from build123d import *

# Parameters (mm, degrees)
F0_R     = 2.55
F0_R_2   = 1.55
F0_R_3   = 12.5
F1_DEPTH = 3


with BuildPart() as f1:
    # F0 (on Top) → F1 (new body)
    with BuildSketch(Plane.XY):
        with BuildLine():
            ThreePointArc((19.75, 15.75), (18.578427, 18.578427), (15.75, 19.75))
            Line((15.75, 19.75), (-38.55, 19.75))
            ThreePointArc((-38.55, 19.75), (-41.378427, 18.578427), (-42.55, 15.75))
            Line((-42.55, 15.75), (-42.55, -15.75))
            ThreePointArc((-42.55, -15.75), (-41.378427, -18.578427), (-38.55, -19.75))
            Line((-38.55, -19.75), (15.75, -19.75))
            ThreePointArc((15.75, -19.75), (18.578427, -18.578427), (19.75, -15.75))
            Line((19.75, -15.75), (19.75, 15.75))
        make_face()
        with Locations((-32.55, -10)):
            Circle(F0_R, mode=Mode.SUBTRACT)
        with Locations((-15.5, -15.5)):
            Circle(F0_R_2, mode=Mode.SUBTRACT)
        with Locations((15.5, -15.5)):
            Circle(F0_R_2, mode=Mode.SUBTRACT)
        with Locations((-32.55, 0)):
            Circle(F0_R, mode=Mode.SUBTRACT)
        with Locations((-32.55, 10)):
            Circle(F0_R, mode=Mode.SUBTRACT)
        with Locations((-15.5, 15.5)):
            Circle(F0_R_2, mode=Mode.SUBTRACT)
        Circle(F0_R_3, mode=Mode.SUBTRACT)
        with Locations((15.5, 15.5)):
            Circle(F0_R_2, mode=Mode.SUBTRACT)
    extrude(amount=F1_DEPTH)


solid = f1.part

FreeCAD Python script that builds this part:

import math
import FreeCAD as App
import Part
import Sketcher

V = App.Vector

doc = App.newDocument("Part")
body = doc.addObject("PartDesign::Body", "Body")

sketch1 = body.newObject("Sketcher::SketchObject", "Sketch")
sketch1.AttachmentSupport = (doc.getObject("XY_Plane"), [""])
sketch1.MapMode = "FlatFace"
sketch1.addGeometry(Part.ArcOfCircle(Part.Circle(V(15.7, 15.7, 0), V(0, 0, 1), 4), math.radians(0), math.radians(90)), False)
sketch1.addGeometry(Part.LineSegment(V(15.8, 19.8, 0), V(-38.5, 19.8, 0)), False)
sketch1.addGeometry(Part.ArcOfCircle(Part.Circle(V(-38.5, 15.7, 0), V(0, 0, 1), 4), math.radians(90), math.radians(180)), False)
sketch1.addGeometry(Part.LineSegment(V(-42.5, 15.8, 0), V(-42.5, -15.8, 0)), False)
sketch1.addGeometry(Part.ArcOfCircle(Part.Circle(V(-38.5, -15.7, 0), V(0, 0, 1), 4), math.radians(-180), math.radians(-90)), False)
sketch1.addGeometry(Part.LineSegment(V(-38.5, -19.8, 0), V(15.8, -19.8, 0)), False)
sketch1.addGeometry(Part.ArcOfCircle(Part.Circle(V(15.7, -15.7, 0), V(0, 0, 1), 4), math.radians(-90), math.radians(0)), False)
sketch1.addGeometry(Part.LineSegment(V(19.8, -15.8, 0), V(19.8, 15.8, 0)), False)
sketch1.addGeometry(Part.Circle(V(-32.5, -10, 0), V(0, 0, 1), 2.5), False)
sketch1.addGeometry(Part.Circle(V(-15.5, -15.5, 0), V(0, 0, 1), 1.6), False)
sketch1.addGeometry(Part.Circle(V(15.5, -15.5, 0), V(0, 0, 1), 1.6), False)
sketch1.addGeometry(Part.Circle(V(-32.5, 0, 0), V(0, 0, 1), 2.5), False)
sketch1.addGeometry(Part.Circle(V(-32.5, 10, 0), V(0, 0, 1), 2.5), False)
sketch1.addGeometry(Part.Circle(V(-15.5, 15.5, 0), V(0, 0, 1), 1.6), False)
sketch1.addGeometry(Part.Circle(V(0, 0, 0), V(0, 0, 1), 12.5), False)
sketch1.addGeometry(Part.Circle(V(15.5, 15.5, 0), V(0, 0, 1), 1.6), False)
sketch1.addConstraint(Sketcher.Constraint("Tangent", 0, 2, 1, 1))
sketch1.addConstraint(Sketcher.Constraint("Tangent", 1, 2, 2, 1))
sketch1.addConstraint(Sketcher.Constraint("Tangent", 2, 2, 3, 1))
sketch1.addConstraint(Sketcher.Constraint("Tangent", 3, 2, 4, 1))
sketch1.addConstraint(Sketcher.Constraint("Tangent", 4, 2, 5, 1))
sketch1.addConstraint(Sketcher.Constraint("Tangent", 5, 2, 6, 1))
sketch1.addConstraint(Sketcher.Constraint("Tangent", 6, 2, 7, 1))
sketch1.addConstraint(Sketcher.Constraint("Tangent", 7, 2, 0, 1))
sketch1.addConstraint(Sketcher.Constraint("Horizontal", 1))
sketch1.addConstraint(Sketcher.Constraint("Vertical", 3))
sketch1.addConstraint(Sketcher.Constraint("Horizontal", 5))
sketch1.addConstraint(Sketcher.Constraint("Vertical", 7))
sketch1.addConstraint(Sketcher.Constraint("Coincident", 14, 3, -1, 1))
sketch1.addConstraint(Sketcher.Constraint("Equal", 0, 2))
sketch1.addConstraint(Sketcher.Constraint("Equal", 2, 4))
sketch1.addConstraint(Sketcher.Constraint("Equal", 4, 6))
sketch1.addConstraint(Sketcher.Constraint("Equal", 9, 10))
sketch1.addConstraint(Sketcher.Constraint("Equal", 8, 11))
sketch1.addConstraint(Sketcher.Constraint("Equal", 11, 12))
sketch1.addConstraint(Sketcher.Constraint("Equal", 10, 13))
sketch1.addConstraint(Sketcher.Constraint("Equal", 13, 15))
sketch1.addConstraint(Sketcher.Constraint("Symmetric", 10, 3, 13, 3, -1, 1))
sketch1.addConstraint(Sketcher.Constraint("Symmetric", 9, 3, 15, 3, -1, 1))
sketch1.addConstraint(Sketcher.Constraint("Symmetric", 9, 3, 10, 3, -2))
sketch1.addConstraint(Sketcher.Constraint("Symmetric", 8, 3, 12, 3, -1))
sketch1.addConstraint(Sketcher.Constraint("PointOnObject", 11, 3, -1))
sketch1.addConstraint(Sketcher.Constraint("Vertical", 8, 3, 11, 3))
sketch1.addConstraint(Sketcher.Constraint("Diameter", 14, 25.0))
sketch1.addConstraint(Sketcher.Constraint("Radius", 0, 4.0))
sketch1.addConstraint(Sketcher.Constraint("Diameter", 8, 5.1))
sketch1.addConstraint(Sketcher.Constraint("Diameter", 9, 3.1))
sketch1.addConstraint(Sketcher.Constraint("DistanceX", 1, 2, 1, 1, 54.3))
sketch1.addConstraint(Sketcher.Constraint("DistanceY", 3, 2, 3, 1, 31.5))
sketch1.addConstraint(Sketcher.Constraint("DistanceY", 8, 3, -1, 1, 10.0))
sketch1.addConstraint(Sketcher.Constraint("DistanceX", 4, 3, 8, 3, 6.0))
sketch1.addConstraint(Sketcher.Constraint("DistanceX", 9, 3, 10, 3, 31.0))
sketch1.addConstraint(Sketcher.Constraint("DistanceY", 9, 3, 13, 3, 31.0))
sketch1.addConstraint(Sketcher.Constraint("DistanceX", -1, 1, 0, 3, 15.75))
sketch1.addConstraint(Sketcher.Constraint("DistanceY", -1, 1, 0, 3, 15.75))
pad1 = body.newObject("PartDesign::Pad", "Pad")
pad1.Profile = sketch1
pad1.Length = 3

doc.recompute()
